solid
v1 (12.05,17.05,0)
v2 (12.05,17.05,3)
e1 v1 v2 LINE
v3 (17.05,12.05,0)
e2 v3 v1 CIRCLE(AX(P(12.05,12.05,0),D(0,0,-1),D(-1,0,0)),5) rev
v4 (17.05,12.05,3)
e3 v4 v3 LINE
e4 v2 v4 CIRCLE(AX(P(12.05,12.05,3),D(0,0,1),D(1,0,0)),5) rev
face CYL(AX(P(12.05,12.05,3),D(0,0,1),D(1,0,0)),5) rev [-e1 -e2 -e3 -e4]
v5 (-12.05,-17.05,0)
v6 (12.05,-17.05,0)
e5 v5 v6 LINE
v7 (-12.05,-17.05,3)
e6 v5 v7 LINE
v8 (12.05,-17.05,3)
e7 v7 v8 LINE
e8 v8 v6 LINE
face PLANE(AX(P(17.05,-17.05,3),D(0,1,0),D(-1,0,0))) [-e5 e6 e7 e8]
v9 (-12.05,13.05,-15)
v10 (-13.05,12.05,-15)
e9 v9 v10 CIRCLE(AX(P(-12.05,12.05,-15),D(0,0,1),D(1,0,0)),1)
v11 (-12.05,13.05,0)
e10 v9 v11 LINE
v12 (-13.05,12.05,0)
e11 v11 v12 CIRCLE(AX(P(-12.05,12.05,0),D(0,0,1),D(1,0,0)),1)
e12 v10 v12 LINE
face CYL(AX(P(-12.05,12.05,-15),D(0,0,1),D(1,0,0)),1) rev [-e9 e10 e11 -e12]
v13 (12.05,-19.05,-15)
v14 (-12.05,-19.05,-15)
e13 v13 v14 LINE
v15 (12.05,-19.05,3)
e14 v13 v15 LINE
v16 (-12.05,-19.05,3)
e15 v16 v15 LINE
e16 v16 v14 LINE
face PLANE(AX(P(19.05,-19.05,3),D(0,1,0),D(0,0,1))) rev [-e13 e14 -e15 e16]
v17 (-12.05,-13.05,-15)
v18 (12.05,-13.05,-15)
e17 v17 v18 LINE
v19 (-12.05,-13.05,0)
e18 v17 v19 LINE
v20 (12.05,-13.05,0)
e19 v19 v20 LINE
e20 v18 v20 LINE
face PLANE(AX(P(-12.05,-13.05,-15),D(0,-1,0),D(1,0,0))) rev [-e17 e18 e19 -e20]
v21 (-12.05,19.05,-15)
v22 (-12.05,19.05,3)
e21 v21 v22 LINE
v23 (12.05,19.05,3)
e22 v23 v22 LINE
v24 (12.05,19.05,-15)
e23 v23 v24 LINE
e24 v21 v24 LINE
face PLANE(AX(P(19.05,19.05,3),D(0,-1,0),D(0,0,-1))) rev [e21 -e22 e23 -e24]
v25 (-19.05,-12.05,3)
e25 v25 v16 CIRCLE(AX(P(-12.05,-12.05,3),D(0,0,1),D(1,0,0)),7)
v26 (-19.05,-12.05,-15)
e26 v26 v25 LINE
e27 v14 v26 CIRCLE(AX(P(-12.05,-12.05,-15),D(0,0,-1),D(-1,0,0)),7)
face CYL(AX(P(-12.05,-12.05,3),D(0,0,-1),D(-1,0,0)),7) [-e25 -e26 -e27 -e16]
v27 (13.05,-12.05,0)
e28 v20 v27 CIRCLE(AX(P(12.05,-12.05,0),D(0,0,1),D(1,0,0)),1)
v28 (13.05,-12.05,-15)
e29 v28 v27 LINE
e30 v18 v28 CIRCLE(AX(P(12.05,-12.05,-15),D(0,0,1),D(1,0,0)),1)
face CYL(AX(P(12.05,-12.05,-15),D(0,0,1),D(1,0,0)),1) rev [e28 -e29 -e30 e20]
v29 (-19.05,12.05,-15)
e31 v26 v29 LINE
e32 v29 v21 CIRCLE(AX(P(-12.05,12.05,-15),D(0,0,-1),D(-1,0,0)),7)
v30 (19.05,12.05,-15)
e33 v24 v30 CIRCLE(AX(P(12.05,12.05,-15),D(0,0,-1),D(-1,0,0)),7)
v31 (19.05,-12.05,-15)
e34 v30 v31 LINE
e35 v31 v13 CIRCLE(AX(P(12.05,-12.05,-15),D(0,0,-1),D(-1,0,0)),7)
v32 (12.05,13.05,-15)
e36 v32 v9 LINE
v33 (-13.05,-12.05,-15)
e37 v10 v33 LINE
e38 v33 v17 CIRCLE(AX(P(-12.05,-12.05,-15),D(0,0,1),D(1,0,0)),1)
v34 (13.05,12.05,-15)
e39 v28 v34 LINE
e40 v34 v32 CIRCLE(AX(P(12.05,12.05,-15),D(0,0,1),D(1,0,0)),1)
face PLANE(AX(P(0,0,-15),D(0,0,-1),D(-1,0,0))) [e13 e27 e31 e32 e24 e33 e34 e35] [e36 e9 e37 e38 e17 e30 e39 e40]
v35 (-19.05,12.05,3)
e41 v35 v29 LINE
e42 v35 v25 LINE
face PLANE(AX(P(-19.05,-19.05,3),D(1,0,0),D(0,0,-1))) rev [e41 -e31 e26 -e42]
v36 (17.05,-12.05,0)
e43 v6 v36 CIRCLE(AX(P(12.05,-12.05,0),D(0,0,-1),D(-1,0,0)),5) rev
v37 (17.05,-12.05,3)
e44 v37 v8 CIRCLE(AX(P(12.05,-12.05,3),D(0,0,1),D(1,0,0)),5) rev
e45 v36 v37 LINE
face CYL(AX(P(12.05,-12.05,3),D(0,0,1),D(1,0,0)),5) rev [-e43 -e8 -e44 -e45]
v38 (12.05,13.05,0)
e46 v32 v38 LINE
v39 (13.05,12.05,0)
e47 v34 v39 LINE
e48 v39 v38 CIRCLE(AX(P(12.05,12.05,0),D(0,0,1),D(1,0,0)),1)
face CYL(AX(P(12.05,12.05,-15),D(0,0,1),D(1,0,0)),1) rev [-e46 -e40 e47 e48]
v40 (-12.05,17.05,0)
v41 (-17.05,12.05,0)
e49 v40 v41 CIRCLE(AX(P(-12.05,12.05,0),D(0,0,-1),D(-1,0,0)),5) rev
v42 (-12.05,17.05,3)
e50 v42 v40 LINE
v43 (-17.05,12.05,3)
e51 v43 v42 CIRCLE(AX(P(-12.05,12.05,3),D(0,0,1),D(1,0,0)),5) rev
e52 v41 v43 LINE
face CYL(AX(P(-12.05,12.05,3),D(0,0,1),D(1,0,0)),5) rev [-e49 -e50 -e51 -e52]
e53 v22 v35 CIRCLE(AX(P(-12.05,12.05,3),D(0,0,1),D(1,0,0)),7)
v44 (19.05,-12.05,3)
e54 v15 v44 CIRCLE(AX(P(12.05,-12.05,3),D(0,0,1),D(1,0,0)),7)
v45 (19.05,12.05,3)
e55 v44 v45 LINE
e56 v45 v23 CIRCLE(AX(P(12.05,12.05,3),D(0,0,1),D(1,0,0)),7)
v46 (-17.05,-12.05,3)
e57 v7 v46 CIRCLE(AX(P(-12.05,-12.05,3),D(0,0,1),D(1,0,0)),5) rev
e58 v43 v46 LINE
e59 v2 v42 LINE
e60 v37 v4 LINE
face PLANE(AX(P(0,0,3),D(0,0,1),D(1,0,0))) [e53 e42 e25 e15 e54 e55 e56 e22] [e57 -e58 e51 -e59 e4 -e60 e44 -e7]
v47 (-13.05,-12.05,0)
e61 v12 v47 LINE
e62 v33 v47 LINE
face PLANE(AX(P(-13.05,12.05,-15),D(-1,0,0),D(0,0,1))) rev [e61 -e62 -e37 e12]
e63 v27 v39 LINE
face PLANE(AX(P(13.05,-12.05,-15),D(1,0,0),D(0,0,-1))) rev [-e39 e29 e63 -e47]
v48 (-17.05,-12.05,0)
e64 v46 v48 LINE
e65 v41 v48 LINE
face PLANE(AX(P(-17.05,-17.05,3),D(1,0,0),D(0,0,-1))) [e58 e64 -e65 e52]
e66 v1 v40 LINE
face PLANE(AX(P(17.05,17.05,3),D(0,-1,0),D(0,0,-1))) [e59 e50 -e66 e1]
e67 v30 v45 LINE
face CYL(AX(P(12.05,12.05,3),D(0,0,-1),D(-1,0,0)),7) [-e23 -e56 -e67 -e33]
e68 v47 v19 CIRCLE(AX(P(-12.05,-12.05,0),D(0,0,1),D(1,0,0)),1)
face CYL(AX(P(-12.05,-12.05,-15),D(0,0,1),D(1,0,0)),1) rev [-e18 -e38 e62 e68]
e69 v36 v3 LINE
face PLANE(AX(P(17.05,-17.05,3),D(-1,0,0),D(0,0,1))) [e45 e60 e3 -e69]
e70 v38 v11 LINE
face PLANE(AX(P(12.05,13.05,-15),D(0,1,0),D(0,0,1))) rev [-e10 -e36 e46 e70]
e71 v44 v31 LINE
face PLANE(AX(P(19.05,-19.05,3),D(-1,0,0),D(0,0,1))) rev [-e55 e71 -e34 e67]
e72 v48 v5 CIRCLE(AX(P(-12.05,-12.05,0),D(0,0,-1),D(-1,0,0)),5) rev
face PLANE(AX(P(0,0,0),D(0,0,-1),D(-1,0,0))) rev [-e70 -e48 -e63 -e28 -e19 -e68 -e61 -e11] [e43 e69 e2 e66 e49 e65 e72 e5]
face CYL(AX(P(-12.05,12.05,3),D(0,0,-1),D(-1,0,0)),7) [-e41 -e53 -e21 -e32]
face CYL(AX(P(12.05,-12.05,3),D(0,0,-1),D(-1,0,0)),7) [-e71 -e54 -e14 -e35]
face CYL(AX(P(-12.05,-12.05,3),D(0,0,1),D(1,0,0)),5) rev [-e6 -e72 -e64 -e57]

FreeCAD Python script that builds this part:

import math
import FreeCAD as App
import Part
import Sketcher


def edges_at(feature, points):
    """Names of the edges that pass closest to the given points."""
    edges = feature.Shape.Edges
    near = lambda p: min(range(len(edges)), key=lambda i: edges[i].distToShape(Part.Vertex(*p))[0])
    return sorted({f"Edge{near(p) + 1}" for p in points})

doc = App.newDocument("Part")
body = doc.addObject("PartDesign::Body", "Body")

sketch1 = body.newObject("Sketcher::SketchObject", "Sketch")
sketch1.AttachmentSupport = (doc.getObject("XY_Plane"), [""])
sketch1.MapMode = "FlatFace"
sketch1.addGeometry(Part.LineSegment(App.Vector(-19, 19, 0), App.Vector(-19, -19, 0)), False)
sketch1.addGeometry(Part.LineSegment(App.Vector(-19, -19, 0), App.Vector(19, -19, 0)), False)
sketch1.addGeometry(Part.LineSegment(App.Vector(19, -19, 0), App.Vector(19, 19, 0)), False)
sketch1.addGeometry(Part.LineSegment(App.Vector(19, 19, 0), App.Vector(-19, 19, 0)), False)
sketch1.addGeometry(Part.LineSegment(App.Vector(17, -17, 0), App.Vector(-17, -17, 0)), False)
sketch1.addGeometry(Part.LineSegment(App.Vector(-17, -17, 0), App.Vector(-17, 17, 0)), False)
sketch1.addGeometry(Part.LineSegment(App.Vector(-17, 17, 0), App.Vector(17, 17, 0)), False)
sketch1.addGeometry(Part.LineSegment(App.Vector(17, 17, 0), App.Vector(17, -17, 0)), False)
sketch1.addConstraint(Sketcher.Constraint("Coincident", 0, 2, 1, 1))
sketch1.addConstraint(Sketcher.Constraint("Coincident", 1, 2, 2, 1))
sketch1.addConstraint(Sketcher.Constraint("Coincident", 2, 2, 3, 1))
sketch1.addConstraint(Sketcher.Constraint("Coincident", 3, 2, 0, 1))
sketch1.addConstraint(Sketcher.Constraint("Coincident", 4, 2, 5, 1))
sketch1.addConstraint(Sketcher.Constraint("Coincident", 5, 2, 6, 1))
sketch1.addConstraint(Sketcher.Constraint("Coincident", 6, 2, 7, 1))
sketch1.addConstraint(Sketcher.Constraint("Coincident", 7, 2, 4, 1))
sketch1.addConstraint(Sketcher.Constraint("Vertical", 0))
sketch1.addConstraint(Sketcher.Constraint("Horizontal", 1))
sketch1.addConstraint(Sketcher.Constraint("Vertical", 2))
sketch1.addConstraint(Sketcher.Constraint("Horizontal", 3))
sketch1.addConstraint(Sketcher.Constraint("Horizontal", 4))
sketch1.addConstraint(Sketcher.Constraint("Vertical", 5))
sketch1.addConstraint(Sketcher.Constraint("Horizontal", 6))
sketch1.addConstraint(Sketcher.Constraint("Vertical", 7))
sketch1.addConstraint(Sketcher.Constraint("Symmetric", 0, 2, 2, 2, -1, 1))
sketch1.addConstraint(Sketcher.Constraint("Symmetric", 4, 2, 6, 2, -1, 1))
sketch1.addConstraint(Sketcher.Constraint("Equal", 3, 0))
sketch1.addConstraint(Sketcher.Constraint("Equal", 6, 5))
sketch1.addConstraint(Sketcher.Constraint("DistanceX", 1, 1, 1, 2, 38.1))
sketch1.addConstraint(Sketcher.Constraint("DistanceX", 4, 2, 4, 1, 34.1))
pad1 = body.newObject("PartDesign::Pad", "Pad")
pad1.Profile = sketch1
pad1.Length = 3

sketch2 = body.newObject("Sketcher::SketchObject", "Sketch001")
sketch2.AttachmentSupport = (doc.getObject("XY_Plane"), [""])
sketch2.MapMode = "FlatFace"
sketch2.addGeometry(Part.LineSegment(App.Vector(19, 19, 0), App.Vector(19, -19, 0)), False)
sketch2.addGeometry(Part.LineSegment(App.Vector(19, -19, 0), App.Vector(-19, -19, 0)), False)
sketch2.addGeometry(Part.LineSegment(App.Vector(-19, -19, 0), App.Vector(-19, 19, 0)), False)
sketch2.addGeometry(Part.LineSegment(App.Vector(-19, 19, 0), App.Vector(19, 19, 0)), False)
sketch2.addConstraint(Sketcher.Constraint("Coincident", 0, 2, 1, 1))
sketch2.addConstraint(Sketcher.Constraint("Coincident", 1, 2, 2, 1))
sketch2.addConstraint(Sketcher.Constraint("Coincident", 2, 2, 3, 1))
sketch2.addConstraint(Sketcher.Constraint("Coincident", 3, 2, 0, 1))
sketch2.addConstraint(Sketcher.Constraint("Vertical", 0))
sketch2.addConstraint(Sketcher.Constraint("Horizontal", 1))
sketch2.addConstraint(Sketcher.Constraint("Vertical", 2))
sketch2.addConstraint(Sketcher.Constraint("Horizontal", 3))
sketch2.addConstraint(Sketcher.Constraint("Symmetric", 0, 2, 2, 2, -1, 1))
sketch2.addConstraint(Sketcher.Constraint("Equal", 3, 0))
sketch2.addConstraint(Sketcher.Constraint("DistanceX", 1, 2, 1, 1, 38.1))
pad2 = body.newObject("PartDesign::Pad", "Pad001")
pad2.Profile = sketch2
pad2.Length = 15
pad2.Reversed = True
doc.recompute()

fillet = body.newObject("PartDesign::Fillet", "Fillet")
fillet.Base = (pad2, edges_at(pad2, [
    (-17.05, 17.05, 1.5),
    (-17.05, -17.05, 1.5),
    (17.05, -17.05, 1.5),
    (17.05, 17.05, 1.5),
]))
fillet.Radius = 5
doc.recompute()

fillet2 = body.newObject("PartDesign::Fillet", "Fillet001")
fillet2.Base = (fillet, edges_at(fillet, [
    (-19.05, 19.05, -6),
    (19.05, 19.05, -6),
    (19.05, -19.05, -6),
    (-19.05, -19.05, -6),
]))
fillet2.Radius = 7

sketch3 = body.newObject("Sketcher::SketchObject", "Sketch002")
sketch3.AttachmentSupport = (doc.getObject("XY_Plane"), [""])
sketch3.MapMode = "FlatFace"
sketch3.addGeometry(Part.LineSegment(App.Vector(-13.1, 12.1, 0), App.Vector(-13.1, -12.1, 0)), False)
sketch3.addGeometry(Part.ArcOfCircle(Part.Circle(App.Vector(-12, -12, 0), App.Vector(0, 0, 1), 1), math.radians(-180), math.radians(-90)), False)
sketch3.addGeometry(Part.LineSegment(App.Vector(-12.1, -13.1, 0), App.Vector(12.1, -13.1, 0)), False)
sketch3.addGeometry(Part.ArcOfCircle(Part.Circle(App.Vector(12, -12, 0), App.Vector(0, 0, 1), 1), math.radians(-90), math.radians(0)), False)
sketch3.addGeometry(Part.LineSegment(App.Vector(13.1, -12.1, 0), App.Vector(13.1, 12.1, 0)), False)
sketch3.addGeometry(Part.ArcOfCircle(Part.Circle(App.Vector(12, 12, 0), App.Vector(0, 0, 1), 1), math.radians(0), math.radians(90)), False)
sketch3.addGeometry(Part.LineSegment(App.Vector(12.1, 13.1, 0), App.Vector(-12.1, 13.1, 0)), False)
sketch3.addGeometry(Part.ArcOfCircle(Part.Circle(App.Vector(-12, 12, 0), App.Vector(0, 0, 1), 1), math.radians(90), math.radians(180)), False)
sketch3.addConstraint(Sketcher.Constraint("Tangent", 0, 2, 1, 1))
sketch3.addConstraint(Sketcher.Constraint("Tangent", 1, 2, 2, 1))
sketch3.addConstraint(Sketcher.Constraint("Tangent", 2, 2, 3, 1))
sketch3.addConstraint(Sketcher.Constraint("Tangent", 3, 2, 4, 1))
sketch3.addConstraint(Sketcher.Constraint("Tangent", 4, 2, 5, 1))
sketch3.addConstraint(Sketcher.Constraint("Tangent", 5, 2, 6, 1))
sketch3.addConstraint(Sketcher.Constraint("Tangent", 6, 2, 7, 1))
sketch3.addConstraint(Sketcher.Constraint("Tangent", 7, 2, 0, 1))
sketch3.addConstraint(Sketcher.Constraint("Vertical", 0))
sketch3.addConstraint(Sketcher.Constraint("Horizontal", 2))
sketch3.addConstraint(Sketcher.Constraint("Vertical", 4))
sketch3.addConstraint(Sketcher.Constraint("Horizontal", 6))
sketch3.addConstraint(Sketcher.Constraint("Equal", 1, 3))
sketch3.addConstraint(Sketcher.Constraint("Equal", 3, 5))
sketch3.addConstraint(Sketcher.Constraint("Equal", 5, 7))
sketch3.addConstraint(Sketcher.Constraint("Symmetric", 1, 3, 5, 3, -1, 1))
sketch3.addConstraint(Sketcher.Constraint("Equal", 6, 0))
sketch3.addConstraint(Sketcher.Constraint("Radius", 1, 1.0))
sketch3.addConstraint(Sketcher.Constraint("DistanceX", 2, 1, 2, 2, 24.1))
pocket1 = body.newObject("PartDesign::Pocket", "Pocket")
pocket1.Profile = sketch3
pocket1.Length = 15

doc.recompute()
